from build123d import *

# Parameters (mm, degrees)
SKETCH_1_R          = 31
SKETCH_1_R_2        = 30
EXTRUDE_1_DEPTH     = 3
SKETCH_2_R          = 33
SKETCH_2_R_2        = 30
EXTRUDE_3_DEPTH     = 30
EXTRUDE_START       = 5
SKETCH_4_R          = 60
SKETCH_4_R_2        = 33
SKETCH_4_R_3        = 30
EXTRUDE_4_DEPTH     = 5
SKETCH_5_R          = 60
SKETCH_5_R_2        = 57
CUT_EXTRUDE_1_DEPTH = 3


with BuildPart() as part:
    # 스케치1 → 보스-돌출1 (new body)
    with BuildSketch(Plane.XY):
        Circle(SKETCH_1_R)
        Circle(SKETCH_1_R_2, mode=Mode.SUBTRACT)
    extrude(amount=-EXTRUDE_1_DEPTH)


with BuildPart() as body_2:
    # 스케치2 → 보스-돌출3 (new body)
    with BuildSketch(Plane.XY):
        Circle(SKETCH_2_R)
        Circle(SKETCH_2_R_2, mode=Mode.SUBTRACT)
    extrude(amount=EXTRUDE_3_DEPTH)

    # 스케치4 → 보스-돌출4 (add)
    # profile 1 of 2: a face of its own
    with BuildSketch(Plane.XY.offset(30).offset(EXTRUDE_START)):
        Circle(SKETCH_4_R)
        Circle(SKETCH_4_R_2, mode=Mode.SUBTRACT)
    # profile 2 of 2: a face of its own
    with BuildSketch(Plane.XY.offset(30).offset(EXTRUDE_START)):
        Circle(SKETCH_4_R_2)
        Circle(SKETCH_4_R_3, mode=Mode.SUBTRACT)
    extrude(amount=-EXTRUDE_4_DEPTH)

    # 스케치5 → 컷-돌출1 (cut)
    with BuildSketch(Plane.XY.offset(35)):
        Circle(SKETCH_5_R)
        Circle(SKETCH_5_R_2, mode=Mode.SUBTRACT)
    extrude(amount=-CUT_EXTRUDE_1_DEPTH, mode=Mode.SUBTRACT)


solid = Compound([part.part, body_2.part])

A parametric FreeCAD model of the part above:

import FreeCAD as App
import Part
import Sketcher
from FreeCAD import Vector

doc = App.newDocument("Part")
body = doc.addObject("PartDesign::Body", "Body")

# Sketch on XY plane
sketch1 = body.newObject("Sketcher::SketchObject", "Sketch")
sketch1.AttachmentSupport = (doc.getObject("XY_Plane"), [""])
sketch1.MapMode = "FlatFace"
sketch1.addGeometry([
    Part.Circle(Vector(0, 0, 0), Vector(0, 0, 1), 31),
    Part.Circle(Vector(0, 0, 0), Vector(0, 0, 1), 30),
], False)
sketch1.addConstraint([
    Sketcher.Constraint("Coincident", 0, 3, -1, 1),
    Sketcher.Constraint("Coincident", 1, 3, -1, 1),
    Sketcher.Constraint("Diameter", 0, 62.0),
    Sketcher.Constraint("Diameter", 1, 60.0),
])
pad1 = body.newObject("PartDesign::Pad", "Pad")
pad1.Profile = sketch1
pad1.Length = 3
pad1.Reversed = True
body2 = doc.addObject("PartDesign::Body", "Body001")

# Sketch on XY plane
sketch2 = body2.newObject("Sketcher::SketchObject", "Sketch001")
sketch2.AttachmentSupport = (doc.getObject("XY_Plane001"), [""])
sketch2.MapMode = "FlatFace"
sketch2.addGeometry([
    Part.Circle(Vector(0, 0, 0), Vector(0, 0, 1), 33),
    Part.Circle(Vector(0, 0, 0), Vector(0, 0, 1), 30),
], False)
sketch2.addConstraint([
    Sketcher.Constraint("Coincident", 0, 3, -1, 1),
    Sketcher.Constraint("Coincident", 1, 3, -1, 1),
    Sketcher.Constraint("Diameter", 0, 66.0),
    Sketcher.Constraint("Diameter", 1, 60.0),
])
pad2 = body2.newObject("PartDesign::Pad", "Pad001")
pad2.Profile = sketch2
pad2.Length = 30

# Sketch on XY plane
sketch3 = body2.newObject("Sketcher::SketchObject", "Sketch002")
sketch3.AttachmentSupport = (doc.getObject("XY_Plane001"), [""])
sketch3.MapMode = "FlatFace"
sketch3.AttachmentOffset = App.Placement(Vector(0, 0, 35), App.Rotation())
sketch3.addGeometry([
    Part.Circle(Vector(0, 0, 0), Vector(0, 0, 1), 60),
    Part.Circle(Vector(0, 0, 0), Vector(0, 0, 1), 30),
], False)
sketch3.addConstraint([
    Sketcher.Constraint("Coincident", 0, 3, -1, 1),
    Sketcher.Constraint("Coincident", 1, 3, -1, 1),
    Sketcher.Constraint("Diameter", 0, 120.0),
    Sketcher.Constraint("Diameter", 1, 60.0),
])
pad3 = body2.newObject("PartDesign::Pad", "Pad002")
pad3.Profile = sketch3
pad3.Length = 5
pad3.Reversed = True

# Sketch on XY plane
sketch4 = body2.newObject("Sketcher::SketchObject", "Sketch003")
sketch4.AttachmentSupport = (doc.getObject("XY_Plane001"), [""])
sketch4.MapMode = "FlatFace"
sketch4.AttachmentOffset = App.Placement(Vector(0, 0, 35), App.Rotation())
sketch4.addGeometry([
    Part.Circle(Vector(0, 0, 0), Vector(0, 0, 1), 60),
    Part.Circle(Vector(0, 0, 0), Vector(0, 0, 1), 57),
], False)
sketch4.addConstraint([
    Sketcher.Constraint("Coincident", 0, 3, -1, 1),
    Sketcher.Constraint("Coincident", 1, 3, -1, 1),
    Sketcher.Constraint("Diameter", 0, 120.0),
    Sketcher.Constraint("Diameter", 1, 114.0),
])
pocket1 = body2.newObject("PartDesign::Pocket", "Pocket")
pocket1.Profile = sketch4
pocket1.Length = 3

doc.recompute()
